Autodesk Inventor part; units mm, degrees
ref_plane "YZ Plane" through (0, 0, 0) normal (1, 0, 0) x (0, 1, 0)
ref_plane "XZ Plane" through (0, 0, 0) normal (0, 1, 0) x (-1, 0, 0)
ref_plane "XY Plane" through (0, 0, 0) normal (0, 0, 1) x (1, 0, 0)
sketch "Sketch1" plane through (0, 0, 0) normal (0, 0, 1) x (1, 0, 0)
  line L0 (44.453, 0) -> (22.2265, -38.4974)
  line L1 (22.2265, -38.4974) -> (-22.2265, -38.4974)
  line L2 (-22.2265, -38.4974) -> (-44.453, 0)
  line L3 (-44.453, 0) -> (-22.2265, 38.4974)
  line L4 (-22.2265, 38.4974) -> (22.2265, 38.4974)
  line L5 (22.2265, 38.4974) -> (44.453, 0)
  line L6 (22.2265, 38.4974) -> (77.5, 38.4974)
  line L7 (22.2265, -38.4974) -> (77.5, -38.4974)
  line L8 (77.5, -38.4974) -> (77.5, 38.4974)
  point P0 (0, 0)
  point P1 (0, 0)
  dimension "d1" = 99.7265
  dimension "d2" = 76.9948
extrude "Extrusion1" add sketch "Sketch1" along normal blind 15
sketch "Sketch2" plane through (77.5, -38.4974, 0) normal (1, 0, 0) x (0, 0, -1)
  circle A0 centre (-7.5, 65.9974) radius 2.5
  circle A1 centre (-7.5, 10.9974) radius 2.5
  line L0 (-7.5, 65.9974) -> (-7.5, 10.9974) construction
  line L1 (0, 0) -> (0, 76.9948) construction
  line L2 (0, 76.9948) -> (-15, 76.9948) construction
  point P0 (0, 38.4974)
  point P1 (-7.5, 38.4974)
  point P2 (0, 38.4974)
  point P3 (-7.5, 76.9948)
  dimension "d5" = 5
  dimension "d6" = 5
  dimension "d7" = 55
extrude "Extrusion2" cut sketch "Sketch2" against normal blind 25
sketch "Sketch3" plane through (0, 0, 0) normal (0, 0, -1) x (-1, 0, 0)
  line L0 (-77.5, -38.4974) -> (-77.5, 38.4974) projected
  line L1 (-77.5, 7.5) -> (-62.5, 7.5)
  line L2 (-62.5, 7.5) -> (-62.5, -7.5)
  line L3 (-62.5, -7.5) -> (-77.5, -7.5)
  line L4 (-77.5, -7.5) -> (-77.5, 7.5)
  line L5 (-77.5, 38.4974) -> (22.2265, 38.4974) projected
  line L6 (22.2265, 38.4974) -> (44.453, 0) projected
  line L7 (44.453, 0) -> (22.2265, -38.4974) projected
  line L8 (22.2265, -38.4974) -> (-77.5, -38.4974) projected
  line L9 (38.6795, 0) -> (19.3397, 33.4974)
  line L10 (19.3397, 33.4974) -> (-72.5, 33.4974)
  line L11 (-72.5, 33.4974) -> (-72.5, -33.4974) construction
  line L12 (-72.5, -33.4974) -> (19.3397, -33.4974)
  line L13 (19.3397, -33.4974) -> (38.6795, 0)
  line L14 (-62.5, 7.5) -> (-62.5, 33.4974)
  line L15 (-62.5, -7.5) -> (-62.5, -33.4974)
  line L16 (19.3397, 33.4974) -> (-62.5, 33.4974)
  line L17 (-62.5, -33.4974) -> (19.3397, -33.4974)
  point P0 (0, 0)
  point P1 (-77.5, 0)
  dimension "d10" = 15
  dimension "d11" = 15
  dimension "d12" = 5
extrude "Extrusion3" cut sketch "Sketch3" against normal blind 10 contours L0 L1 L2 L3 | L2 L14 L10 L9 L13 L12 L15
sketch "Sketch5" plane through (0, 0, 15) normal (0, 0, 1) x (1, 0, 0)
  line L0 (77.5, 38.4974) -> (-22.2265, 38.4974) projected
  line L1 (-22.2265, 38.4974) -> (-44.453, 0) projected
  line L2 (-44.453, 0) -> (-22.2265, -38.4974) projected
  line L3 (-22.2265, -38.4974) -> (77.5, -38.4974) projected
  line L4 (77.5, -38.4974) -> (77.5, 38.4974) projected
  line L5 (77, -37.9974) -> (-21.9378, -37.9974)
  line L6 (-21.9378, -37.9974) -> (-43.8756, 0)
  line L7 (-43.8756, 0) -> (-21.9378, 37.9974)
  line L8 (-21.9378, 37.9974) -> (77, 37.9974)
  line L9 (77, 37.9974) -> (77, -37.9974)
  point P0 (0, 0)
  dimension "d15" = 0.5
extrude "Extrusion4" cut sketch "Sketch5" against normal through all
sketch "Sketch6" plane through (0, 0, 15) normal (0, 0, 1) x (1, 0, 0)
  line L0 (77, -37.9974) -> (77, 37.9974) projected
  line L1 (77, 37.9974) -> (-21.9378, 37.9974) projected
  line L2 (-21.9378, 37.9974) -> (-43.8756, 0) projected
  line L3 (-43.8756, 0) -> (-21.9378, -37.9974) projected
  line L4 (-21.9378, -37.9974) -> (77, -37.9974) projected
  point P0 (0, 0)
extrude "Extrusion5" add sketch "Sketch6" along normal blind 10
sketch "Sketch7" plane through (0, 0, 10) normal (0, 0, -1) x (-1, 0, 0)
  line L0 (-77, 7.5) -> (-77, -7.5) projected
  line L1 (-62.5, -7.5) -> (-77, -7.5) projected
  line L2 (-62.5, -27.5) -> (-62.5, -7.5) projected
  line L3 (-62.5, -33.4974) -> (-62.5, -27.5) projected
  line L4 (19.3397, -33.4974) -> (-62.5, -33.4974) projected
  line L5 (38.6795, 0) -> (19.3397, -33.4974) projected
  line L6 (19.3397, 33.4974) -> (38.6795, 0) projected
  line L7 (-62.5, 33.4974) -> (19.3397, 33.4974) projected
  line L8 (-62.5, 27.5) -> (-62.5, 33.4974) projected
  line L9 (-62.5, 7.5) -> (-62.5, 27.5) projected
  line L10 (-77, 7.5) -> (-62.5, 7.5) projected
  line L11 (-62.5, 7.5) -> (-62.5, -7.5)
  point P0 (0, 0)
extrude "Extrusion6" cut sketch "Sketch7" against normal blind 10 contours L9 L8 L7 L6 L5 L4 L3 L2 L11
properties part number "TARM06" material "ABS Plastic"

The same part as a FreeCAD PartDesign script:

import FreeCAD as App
import Part
import Sketcher
Q = App.Units.Quantity


def add_polygon(sketch, points):
    """Adds a closed chain of lines whose ends are joined by coincident constraints."""
    first, n = sketch.GeometryCount, len(points)
    for a, b in zip(points, points[1:] + points[:1]):
        sketch.addGeometry(Part.LineSegment(App.Vector(*a, 0), App.Vector(*b, 0)), False)
    for i in range(n):
        sketch.addConstraint(Sketcher.Constraint("Coincident", first + i, 2, first + (i + 1) % n, 1))

doc = App.newDocument("Part")
params = doc.addObject("Spreadsheet::Sheet", "Params")
for row, (alias, value) in enumerate([
    ("pad1_length", "15 mm"),
    ("sketch2_diameter", "5 mm"),
    ("pocket1_length", "25 mm"),
    ("sketch3_width", "15 mm"),
    ("pocket2_length", "10 mm"),
    ("pad2_length", "10 mm"),
    ("pocket4_length", "10 mm"),
], start=1):
    params.set(f"A{row}", alias)
    params.set(f"B{row}", "=" + value)
    params.setAlias(f"B{row}", alias)

body = doc.addObject("PartDesign::Body", "Body")

sketch1 = doc.addObject("Sketcher::SketchObject", "Sketch")
body.addObject(sketch1)
sketch1.AttachmentSupport = (doc.XY_Plane, [""])
sketch1.MapMode = "FlatFace"
add_polygon(sketch1, [(78, 38), (-22, 38), (-44, 0), (-22, -38), (78, -38)])
sketch1.addConstraint(Sketcher.Constraint("Horizontal", 0))
sketch1.addConstraint(Sketcher.Constraint("Horizontal", 3))
sketch1.addConstraint(Sketcher.Constraint("Vertical", 4))
sketch1.addConstraint(Sketcher.Constraint("Symmetric", 0, 2, 2, 2, -1))
sketch1.addConstraint(Sketcher.Constraint("PointOnObject", 1, 2, -1))
sketch1.addConstraint(Sketcher.Constraint("Angle", 1, Q("-120 deg")))
sketch1.addConstraint(Sketcher.Constraint("DistanceX", 0, 2, 0, 1, 99.7265))
sketch1.addConstraint(Sketcher.Constraint("DistanceY", 4, 1, 4, 2, 76.9948))
sketch1.addConstraint(Sketcher.Constraint("DistanceX", -1, 1, 3, 2, 77.5))
pad1 = doc.addObject("PartDesign::Pad", "Pad")
body.addObject(pad1)
pad1.Profile = sketch1
pad1.setExpression("Length", "Params.pad1_length")

sketch2 = doc.addObject("Sketcher::SketchObject", "Sketch001")
body.addObject(sketch2)
sketch2.AttachmentSupport = (doc.YZ_Plane, [""])
sketch2.MapMode = "FlatFace"
sketch2.AttachmentOffset = App.Placement(App.Vector(0, 0, 77.5), App.Rotation())
sketch2.addGeometry(Part.Circle(App.Vector(27.5, 7.5, 0), App.Vector(0, 0, 1), 2.5), False)
sketch2.addGeometry(Part.Circle(App.Vector(-27.5, 7.5, 0), App.Vector(0, 0, 1), 2.5), False)
sketch2.addConstraint(Sketcher.Constraint("Equal", 0, 1))
sketch2.addConstraint(Sketcher.Constraint("Symmetric", 0, 3, 1, 3, -2))
sketch2.addConstraint(Sketcher.Constraint("Diameter", 0, 5.0))
sketch2.addConstraint(Sketcher.Constraint("DistanceX", 1, 3, 0, 3, 55.0))
sketch2.addConstraint(Sketcher.Constraint("DistanceY", -1, 1, 0, 3, 7.5))
sketch2.setExpression("Constraints[2]", "Params.sketch2_diameter")
pocket1 = doc.addObject("PartDesign::Pocket", "Pocket")
body.addObject(pocket1)
pocket1.Profile = sketch2
pocket1.setExpression("Length", "Params.pocket1_length")

sketch3 = doc.addObject("Sketcher::SketchObject", "Sketch002")
body.addObject(sketch3)
sketch3.AttachmentSupport = (doc.XY_Plane, [""])
sketch3.MapMode = "FlatFace"
add_polygon(sketch3, [(78, 8), (78, -8), (62, -8), (62, -33), (-19, -33), (-39, 0), (-19, 33), (62, 33), (62, 8)])
sketch3.addConstraint(Sketcher.Constraint("Vertical", 0))
sketch3.addConstraint(Sketcher.Constraint("Horizontal", 1))
sketch3.addConstraint(Sketcher.Constraint("Vertical", 2))
sketch3.addConstraint(Sketcher.Constraint("Horizontal", 3))
sketch3.addConstraint(Sketcher.Constraint("Horizontal", 6))
sketch3.addConstraint(Sketcher.Constraint("Vertical", 7))
sketch3.addConstraint(Sketcher.Constraint("Horizontal", 8))
sketch3.addConstraint(Sketcher.Constraint("Symmetric", 3, 2, 5, 2, -1))
sketch3.addConstraint(Sketcher.Constraint("Symmetric", 1, 2, 7, 2, -1))
sketch3.addConstraint(Sketcher.Constraint("PointOnObject", 4, 2, -1))
sketch3.addConstraint(Sketcher.Constraint("Equal", 8, 0))
sketch3.addConstraint(Sketcher.Constraint("DistanceX", 1, 2, 1, 1, 15.0))
sketch3.addConstraint(Sketcher.Constraint("Angle", 4, Q("120 deg")))
sketch3.addConstraint(Sketcher.Constraint("DistanceX", -1, 1, 0, 2, 77.5))
sketch3.addConstraint(Sketcher.Constraint("DistanceX", 3, 2, 3, 1, 81.8397))
sketch3.addConstraint(Sketcher.Constraint("DistanceY", 2, 2, 2, 1, 25.9974))
sketch3.setExpression("Constraints[20]", "Params.sketch3_width")
pocket2 = doc.addObject("PartDesign::Pocket", "Pocket001")
body.addObject(pocket2)
pocket2.Profile = sketch3
pocket2.setExpression("Length", "Params.pocket2_length")
pocket2.Reversed = True

sketch4 = doc.addObject("Sketcher::SketchObject", "Sketch003")
body.addObject(sketch4)
sketch4.AttachmentSupport = (doc.XY_Plane, [""])
sketch4.MapMode = "FlatFace"
sketch4.AttachmentOffset = App.Placement(App.Vector(0, 0, 15), App.Rotation())
add_polygon(sketch4, [(78, -38), (78, 38), (-22, 38), (-44, 0), (-22, -38)])
add_polygon(sketch4, [(77, 38), (77, -38), (-22, -38), (-44, 0), (-22, 38)])
sketch4.addConstraint(Sketcher.Constraint("Vertical", 0))
sketch4.addConstraint(Sketcher.Constraint("Horizontal", 1))
sketch4.addConstraint(Sketcher.Constraint("Horizontal", 4))
sketch4.addConstraint(Sketcher.Constraint("Vertical", 5))
sketch4.addConstraint(Sketcher.Constraint("Horizontal", 6))
sketch4.addConstraint(Sketcher.Constraint("Horizontal", 9))
sketch4.addConstraint(Sketcher.Constraint("Symmetric", 1, 2, 3, 2, -1))
sketch4.addConstraint(Sketcher.Constraint("Symmetric", 6, 2, 8, 2, -1))
sketch4.addConstraint(Sketcher.Constraint("PointOnObject", 2, 2, -1))
sketch4.addConstraint(Sketcher.Constraint("PointOnObject", 7, 2, -1))
sketch4.addConstraint(Sketcher.Constraint("Parallel", 3, 7))
sketch4.addConstraint(Sketcher.Constraint("DistanceX", 5, 2, 4, 2, 0.5))
sketch4.addConstraint(Sketcher.Constraint("DistanceY", 4, 2, 5, 2, 0.5))
sketch4.addConstraint(Sketcher.Constraint("Angle", 2, Q("-120 deg")))
sketch4.addConstraint(Sketcher.Constraint("DistanceX", -1, 1, 5, 2, 77.0))
sketch4.addConstraint(Sketcher.Constraint("Distance", 2, 44.453))
sketch4.addConstraint(Sketcher.Constraint("DistanceX", 1, 2, 1, 1, 99.7265))
sketch4.addConstraint(Sketcher.Constraint("DistanceX", 6, 2, 6, 1, 98.9378))
pocket3 = doc.addObject("PartDesign::Pocket", "Pocket002")
body.addObject(pocket3)
pocket3.Profile = sketch4
pocket3.Type = "ThroughAll"

sketch5 = doc.addObject("Sketcher::SketchObject", "Sketch004")
body.addObject(sketch5)
sketch5.AttachmentSupport = (doc.XY_Plane, [""])
sketch5.MapMode = "FlatFace"
sketch5.AttachmentOffset = App.Placement(App.Vector(0, 0, 15), App.Rotation())
add_polygon(sketch5, [(-22, -38), (77, -38), (77, 38), (-22, 38), (-44, 0)])
sketch5.addConstraint(Sketcher.Constraint("Horizontal", 0))
sketch5.addConstraint(Sketcher.Constraint("Vertical", 1))
sketch5.addConstraint(Sketcher.Constraint("Horizontal", 2))
sketch5.addConstraint(Sketcher.Constraint("Symmetric", 2, 2, 4, 2, -1))
sketch5.addConstraint(Sketcher.Constraint("PointOnObject", 3, 2, -1))
sketch5.addConstraint(Sketcher.Constraint("Angle", 3, Q("-120 deg")))
sketch5.addConstraint(Sketcher.Constraint("DistanceX", -1, 1, 0, 2, 77.0))
sketch5.addConstraint(Sketcher.Constraint("DistanceX", 0, 1, 0, 2, 98.9378))
sketch5.addConstraint(Sketcher.Constraint("DistanceY", 1, 1, 1, 2, 75.9948))
pad2 = doc.addObject("PartDesign::Pad", "Pad001")
body.addObject(pad2)
pad2.Profile = sketch5
pad2.setExpression("Length", "Params.pad2_length")

sketch6 = doc.addObject("Sketcher::SketchObject", "Sketch005")
body.addObject(sketch6)
sketch6.AttachmentSupport = (doc.XY_Plane, [""])
sketch6.MapMode = "FlatFace"
sketch6.AttachmentOffset = App.Placement(App.Vector(0, 0, 10), App.Rotation())
add_polygon(sketch6, [(62, 33), (62, -33), (-19, -33), (-39, 0), (-19, 33)])
sketch6.addConstraint(Sketcher.Constraint("Vertical", 0))
sketch6.addConstraint(Sketcher.Constraint("Horizontal", 1))
sketch6.addConstraint(Sketcher.Constraint("Horizontal", 4))
sketch6.addConstraint(Sketcher.Constraint("Symmetric", 1, 2, 3, 2, -1))
sketch6.addConstraint(Sketcher.Constraint("PointOnObject", 2, 2, -1))
sketch6.addConstraint(Sketcher.Constraint("Angle", 2, Q("120 deg")))
sketch6.addConstraint(Sketcher.Constraint("DistanceX", -1, 1, 0, 2, 62.5))
sketch6.addConstraint(Sketcher.Constraint("DistanceX", 1, 2, 1, 1, 81.8397))
sketch6.addConstraint(Sketcher.Constraint("DistanceY", 0, 2, 0, 1, 66.9948))
pocket4 = doc.addObject("PartDesign::Pocket", "Pocket003")
body.addObject(pocket4)
pocket4.Profile = sketch6
pocket4.setExpression("Length", "Params.pocket4_length")
pocket4.Reversed = True

doc.recompute()
